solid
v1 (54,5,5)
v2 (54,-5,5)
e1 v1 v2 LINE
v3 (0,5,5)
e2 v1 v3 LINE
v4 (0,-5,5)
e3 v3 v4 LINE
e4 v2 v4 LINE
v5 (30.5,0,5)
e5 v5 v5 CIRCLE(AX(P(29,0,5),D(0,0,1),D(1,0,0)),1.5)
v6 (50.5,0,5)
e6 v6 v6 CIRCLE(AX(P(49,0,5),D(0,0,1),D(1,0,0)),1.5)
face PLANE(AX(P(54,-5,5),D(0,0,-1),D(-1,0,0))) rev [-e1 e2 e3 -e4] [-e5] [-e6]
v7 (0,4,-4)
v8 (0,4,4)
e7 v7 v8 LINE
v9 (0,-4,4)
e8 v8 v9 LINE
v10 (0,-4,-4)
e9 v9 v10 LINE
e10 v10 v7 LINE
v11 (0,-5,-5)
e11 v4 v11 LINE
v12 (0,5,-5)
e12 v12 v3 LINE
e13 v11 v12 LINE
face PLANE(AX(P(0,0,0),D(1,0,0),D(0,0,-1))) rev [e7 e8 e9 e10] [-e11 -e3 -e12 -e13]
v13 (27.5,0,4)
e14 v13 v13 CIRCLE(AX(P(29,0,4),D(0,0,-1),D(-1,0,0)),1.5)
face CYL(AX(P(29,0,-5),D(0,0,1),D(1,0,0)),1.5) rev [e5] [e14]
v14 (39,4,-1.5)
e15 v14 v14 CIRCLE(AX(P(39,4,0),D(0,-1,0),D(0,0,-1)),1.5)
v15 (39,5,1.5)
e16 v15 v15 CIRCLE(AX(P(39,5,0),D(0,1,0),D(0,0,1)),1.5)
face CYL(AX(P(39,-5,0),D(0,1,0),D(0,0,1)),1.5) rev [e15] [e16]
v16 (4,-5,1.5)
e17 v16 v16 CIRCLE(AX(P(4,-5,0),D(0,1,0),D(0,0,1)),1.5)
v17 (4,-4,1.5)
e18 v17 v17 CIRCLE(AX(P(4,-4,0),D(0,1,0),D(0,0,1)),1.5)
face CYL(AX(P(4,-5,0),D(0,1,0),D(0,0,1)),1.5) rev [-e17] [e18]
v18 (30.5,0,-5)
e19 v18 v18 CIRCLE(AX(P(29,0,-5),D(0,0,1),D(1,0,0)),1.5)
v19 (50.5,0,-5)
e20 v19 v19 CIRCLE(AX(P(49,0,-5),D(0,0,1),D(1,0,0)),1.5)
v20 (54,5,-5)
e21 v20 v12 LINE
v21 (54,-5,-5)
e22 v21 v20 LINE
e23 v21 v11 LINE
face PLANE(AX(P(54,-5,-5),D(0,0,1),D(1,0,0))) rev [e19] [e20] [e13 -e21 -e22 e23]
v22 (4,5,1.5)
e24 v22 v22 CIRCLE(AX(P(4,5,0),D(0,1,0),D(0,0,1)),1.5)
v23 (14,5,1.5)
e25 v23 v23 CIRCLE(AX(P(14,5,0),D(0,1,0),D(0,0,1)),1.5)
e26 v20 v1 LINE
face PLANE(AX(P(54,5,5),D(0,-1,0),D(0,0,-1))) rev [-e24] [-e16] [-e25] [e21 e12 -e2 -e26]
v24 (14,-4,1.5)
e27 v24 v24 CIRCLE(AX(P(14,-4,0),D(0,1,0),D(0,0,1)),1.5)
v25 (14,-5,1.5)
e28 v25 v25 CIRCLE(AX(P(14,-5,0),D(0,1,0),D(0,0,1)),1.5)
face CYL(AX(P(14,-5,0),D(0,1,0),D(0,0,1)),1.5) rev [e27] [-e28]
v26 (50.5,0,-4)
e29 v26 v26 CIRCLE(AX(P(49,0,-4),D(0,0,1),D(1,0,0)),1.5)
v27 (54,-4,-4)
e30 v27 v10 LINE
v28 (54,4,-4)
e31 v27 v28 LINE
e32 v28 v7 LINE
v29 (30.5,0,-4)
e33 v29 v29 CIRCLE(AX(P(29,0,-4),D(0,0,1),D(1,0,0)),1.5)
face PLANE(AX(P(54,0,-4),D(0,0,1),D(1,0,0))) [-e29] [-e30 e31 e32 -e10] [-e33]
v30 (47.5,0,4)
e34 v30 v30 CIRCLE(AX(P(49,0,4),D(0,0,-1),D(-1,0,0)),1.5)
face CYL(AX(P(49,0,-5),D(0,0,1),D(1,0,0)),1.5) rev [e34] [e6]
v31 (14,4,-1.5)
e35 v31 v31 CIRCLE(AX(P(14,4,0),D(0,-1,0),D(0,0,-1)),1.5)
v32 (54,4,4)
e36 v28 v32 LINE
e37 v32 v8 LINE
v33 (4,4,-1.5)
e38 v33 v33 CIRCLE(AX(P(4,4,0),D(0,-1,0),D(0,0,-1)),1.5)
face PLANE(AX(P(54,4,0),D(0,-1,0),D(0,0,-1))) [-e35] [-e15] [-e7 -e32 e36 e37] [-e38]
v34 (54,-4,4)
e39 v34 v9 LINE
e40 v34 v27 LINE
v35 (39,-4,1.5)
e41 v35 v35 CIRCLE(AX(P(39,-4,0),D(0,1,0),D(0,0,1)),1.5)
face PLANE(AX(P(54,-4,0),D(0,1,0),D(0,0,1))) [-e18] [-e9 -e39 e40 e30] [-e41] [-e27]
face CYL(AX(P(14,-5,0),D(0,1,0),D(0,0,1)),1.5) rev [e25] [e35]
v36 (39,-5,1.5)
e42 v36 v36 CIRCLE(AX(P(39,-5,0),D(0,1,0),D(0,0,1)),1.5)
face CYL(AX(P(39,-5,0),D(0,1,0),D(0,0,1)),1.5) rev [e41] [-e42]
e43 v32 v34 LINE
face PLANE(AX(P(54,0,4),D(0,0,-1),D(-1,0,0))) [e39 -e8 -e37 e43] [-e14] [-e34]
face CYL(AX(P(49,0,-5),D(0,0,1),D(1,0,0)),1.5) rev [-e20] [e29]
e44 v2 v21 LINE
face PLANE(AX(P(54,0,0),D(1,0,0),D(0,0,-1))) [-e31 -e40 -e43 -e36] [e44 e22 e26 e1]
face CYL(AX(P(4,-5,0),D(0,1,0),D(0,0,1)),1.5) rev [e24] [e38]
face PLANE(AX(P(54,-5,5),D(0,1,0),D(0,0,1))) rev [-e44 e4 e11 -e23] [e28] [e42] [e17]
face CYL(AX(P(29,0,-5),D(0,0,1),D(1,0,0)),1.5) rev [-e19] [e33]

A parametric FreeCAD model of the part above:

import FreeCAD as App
import Part
import Sketcher
from FreeCAD import Vector

doc = App.newDocument("Part")
body = doc.addObject("PartDesign::Body", "Body")

# Sketch on YZ plane
sketch1 = body.newObject("Sketcher::SketchObject", "Sketch")
sketch1.AttachmentSupport = (doc.getObject("YZ_Plane"), [""])
sketch1.MapMode = "FlatFace"
sketch1.addGeometry([
    Part.LineSegment(Vector(5, 5, 0), Vector(-5, 5, 0)),  # 0
    Part.LineSegment(Vector(-5, 5, 0), Vector(-5, -5, 0)),  # 1
    Part.LineSegment(Vector(-5, -5, 0), Vector(5, -5, 0)),  # 2
    Part.LineSegment(Vector(5, -5, 0), Vector(5, 5, 0)),  # 3
    Part.LineSegment(Vector(-4, -4, 0), Vector(-4, 4, 0)),  # 4
    Part.LineSegment(Vector(-4, 4, 0), Vector(4, 4, 0)),  # 5
    Part.LineSegment(Vector(4, 4, 0), Vector(4, -4, 0)),  # 6
    Part.LineSegment(Vector(4, -4, 0), Vector(-4, -4, 0)),  # 7
], False)
sketch1.addConstraint([
    Sketcher.Constraint("Coincident", 0, 2, 1, 1),
    Sketcher.Constraint("Coincident", 1, 2, 2, 1),
    Sketcher.Constraint("Coincident", 2, 2, 3, 1),
    Sketcher.Constraint("Coincident", 3, 2, 0, 1),
    Sketcher.Constraint("Coincident", 4, 2, 5, 1),
    Sketcher.Constraint("Coincident", 5, 2, 6, 1),
    Sketcher.Constraint("Coincident", 6, 2, 7, 1),
    Sketcher.Constraint("Coincident", 7, 2, 4, 1),
    Sketcher.Constraint("Horizontal", 0),
    Sketcher.Constraint("Vertical", 1),
    Sketcher.Constraint("Horizontal", 2),
    Sketcher.Constraint("Vertical", 3),
    Sketcher.Constraint("Vertical", 4),
    Sketcher.Constraint("Horizontal", 5),
    Sketcher.Constraint("Vertical", 6),
    Sketcher.Constraint("Horizontal", 7),
    Sketcher.Constraint("Symmetric", 0, 2, 2, 2, -1, 1),
    Sketcher.Constraint("Symmetric", 4, 2, 6, 2, -1, 1),
    Sketcher.Constraint("Equal", 2, 1),
    Sketcher.Constraint("Equal", 7, 4),
    Sketcher.Constraint("DistanceX", 0, 2, 0, 1, 10.0),
    Sketcher.Constraint("DistanceX", 5, 1, 5, 2, 8.0),
])
pad1 = body.newObject("PartDesign::Pad", "Pad")
pad1.Profile = sketch1
pad1.Length = 54

# Sketch on XZ plane
sketch2 = body.newObject("Sketcher::SketchObject", "Sketch001")
sketch2.AttachmentSupport = (doc.getObject("XZ_Plane"), [""])
sketch2.MapMode = "FlatFace"
sketch2.AttachmentOffset = App.Placement(Vector(0, 0, -5), App.Rotation())
sketch2.addGeometry([
    Part.Circle(Vector(4, 0, 0), Vector(0, 0, 1), 1.5),
    Part.Circle(Vector(14, 0, 0), Vector(0, 0, 1), 1.5),
    Part.Circle(Vector(39, 0, 0), Vector(0, 0, 1), 1.5),
], False)
sketch2.addConstraint([
    Sketcher.Constraint("Equal", 0, 1),
    Sketcher.Constraint("Equal", 1, 2),
    Sketcher.Constraint("PointOnObject", 0, 3, -1),
    Sketcher.Constraint("PointOnObject", 1, 3, -1),
    Sketcher.Constraint("PointOnObject", 2, 3, -1),
    Sketcher.Constraint("Diameter", 0, 3.0),
    Sketcher.Constraint("DistanceX", -1, 1, 0, 3, 4.0),
    Sketcher.Constraint("DistanceX", -1, 1, 1, 3, 14.0),
    Sketcher.Constraint("DistanceX", -1, 1, 2, 3, 39.0),
])
pocket1 = body.newObject("PartDesign::Pocket", "Pocket")
pocket1.Profile = sketch2
pocket1.Type = "ThroughAll"
pocket1.Reversed = True

# Sketch on XY plane
sketch3 = body.newObject("Sketcher::SketchObject", "Sketch002")
sketch3.AttachmentSupport = (doc.getObject("XY_Plane"), [""])
sketch3.MapMode = "FlatFace"
sketch3.AttachmentOffset = App.Placement(Vector(0, 0, 5), App.Rotation())
sketch3.addGeometry([
    Part.Circle(Vector(49, 0, 0), Vector(0, 0, 1), 1.5),
    Part.Circle(Vector(29, 0, 0), Vector(0, 0, 1), 1.5),
], False)
sketch3.addConstraint([
    Sketcher.Constraint("Equal", 0, 1),
    Sketcher.Constraint("PointOnObject", 0, 3, -1),
    Sketcher.Constraint("PointOnObject", 1, 3, -1),
    Sketcher.Constraint("Diameter", 0, 3.0),
    Sketcher.Constraint("DistanceX", -1, 1, 0, 3, 49.0),
    Sketcher.Constraint("DistanceX", -1, 1, 1, 3, 29.0),
])
pocket2 = body.newObject("PartDesign::Pocket", "Pocket001")
pocket2.Profile = sketch3
pocket2.Type = "ThroughAll"

doc.recompute()
